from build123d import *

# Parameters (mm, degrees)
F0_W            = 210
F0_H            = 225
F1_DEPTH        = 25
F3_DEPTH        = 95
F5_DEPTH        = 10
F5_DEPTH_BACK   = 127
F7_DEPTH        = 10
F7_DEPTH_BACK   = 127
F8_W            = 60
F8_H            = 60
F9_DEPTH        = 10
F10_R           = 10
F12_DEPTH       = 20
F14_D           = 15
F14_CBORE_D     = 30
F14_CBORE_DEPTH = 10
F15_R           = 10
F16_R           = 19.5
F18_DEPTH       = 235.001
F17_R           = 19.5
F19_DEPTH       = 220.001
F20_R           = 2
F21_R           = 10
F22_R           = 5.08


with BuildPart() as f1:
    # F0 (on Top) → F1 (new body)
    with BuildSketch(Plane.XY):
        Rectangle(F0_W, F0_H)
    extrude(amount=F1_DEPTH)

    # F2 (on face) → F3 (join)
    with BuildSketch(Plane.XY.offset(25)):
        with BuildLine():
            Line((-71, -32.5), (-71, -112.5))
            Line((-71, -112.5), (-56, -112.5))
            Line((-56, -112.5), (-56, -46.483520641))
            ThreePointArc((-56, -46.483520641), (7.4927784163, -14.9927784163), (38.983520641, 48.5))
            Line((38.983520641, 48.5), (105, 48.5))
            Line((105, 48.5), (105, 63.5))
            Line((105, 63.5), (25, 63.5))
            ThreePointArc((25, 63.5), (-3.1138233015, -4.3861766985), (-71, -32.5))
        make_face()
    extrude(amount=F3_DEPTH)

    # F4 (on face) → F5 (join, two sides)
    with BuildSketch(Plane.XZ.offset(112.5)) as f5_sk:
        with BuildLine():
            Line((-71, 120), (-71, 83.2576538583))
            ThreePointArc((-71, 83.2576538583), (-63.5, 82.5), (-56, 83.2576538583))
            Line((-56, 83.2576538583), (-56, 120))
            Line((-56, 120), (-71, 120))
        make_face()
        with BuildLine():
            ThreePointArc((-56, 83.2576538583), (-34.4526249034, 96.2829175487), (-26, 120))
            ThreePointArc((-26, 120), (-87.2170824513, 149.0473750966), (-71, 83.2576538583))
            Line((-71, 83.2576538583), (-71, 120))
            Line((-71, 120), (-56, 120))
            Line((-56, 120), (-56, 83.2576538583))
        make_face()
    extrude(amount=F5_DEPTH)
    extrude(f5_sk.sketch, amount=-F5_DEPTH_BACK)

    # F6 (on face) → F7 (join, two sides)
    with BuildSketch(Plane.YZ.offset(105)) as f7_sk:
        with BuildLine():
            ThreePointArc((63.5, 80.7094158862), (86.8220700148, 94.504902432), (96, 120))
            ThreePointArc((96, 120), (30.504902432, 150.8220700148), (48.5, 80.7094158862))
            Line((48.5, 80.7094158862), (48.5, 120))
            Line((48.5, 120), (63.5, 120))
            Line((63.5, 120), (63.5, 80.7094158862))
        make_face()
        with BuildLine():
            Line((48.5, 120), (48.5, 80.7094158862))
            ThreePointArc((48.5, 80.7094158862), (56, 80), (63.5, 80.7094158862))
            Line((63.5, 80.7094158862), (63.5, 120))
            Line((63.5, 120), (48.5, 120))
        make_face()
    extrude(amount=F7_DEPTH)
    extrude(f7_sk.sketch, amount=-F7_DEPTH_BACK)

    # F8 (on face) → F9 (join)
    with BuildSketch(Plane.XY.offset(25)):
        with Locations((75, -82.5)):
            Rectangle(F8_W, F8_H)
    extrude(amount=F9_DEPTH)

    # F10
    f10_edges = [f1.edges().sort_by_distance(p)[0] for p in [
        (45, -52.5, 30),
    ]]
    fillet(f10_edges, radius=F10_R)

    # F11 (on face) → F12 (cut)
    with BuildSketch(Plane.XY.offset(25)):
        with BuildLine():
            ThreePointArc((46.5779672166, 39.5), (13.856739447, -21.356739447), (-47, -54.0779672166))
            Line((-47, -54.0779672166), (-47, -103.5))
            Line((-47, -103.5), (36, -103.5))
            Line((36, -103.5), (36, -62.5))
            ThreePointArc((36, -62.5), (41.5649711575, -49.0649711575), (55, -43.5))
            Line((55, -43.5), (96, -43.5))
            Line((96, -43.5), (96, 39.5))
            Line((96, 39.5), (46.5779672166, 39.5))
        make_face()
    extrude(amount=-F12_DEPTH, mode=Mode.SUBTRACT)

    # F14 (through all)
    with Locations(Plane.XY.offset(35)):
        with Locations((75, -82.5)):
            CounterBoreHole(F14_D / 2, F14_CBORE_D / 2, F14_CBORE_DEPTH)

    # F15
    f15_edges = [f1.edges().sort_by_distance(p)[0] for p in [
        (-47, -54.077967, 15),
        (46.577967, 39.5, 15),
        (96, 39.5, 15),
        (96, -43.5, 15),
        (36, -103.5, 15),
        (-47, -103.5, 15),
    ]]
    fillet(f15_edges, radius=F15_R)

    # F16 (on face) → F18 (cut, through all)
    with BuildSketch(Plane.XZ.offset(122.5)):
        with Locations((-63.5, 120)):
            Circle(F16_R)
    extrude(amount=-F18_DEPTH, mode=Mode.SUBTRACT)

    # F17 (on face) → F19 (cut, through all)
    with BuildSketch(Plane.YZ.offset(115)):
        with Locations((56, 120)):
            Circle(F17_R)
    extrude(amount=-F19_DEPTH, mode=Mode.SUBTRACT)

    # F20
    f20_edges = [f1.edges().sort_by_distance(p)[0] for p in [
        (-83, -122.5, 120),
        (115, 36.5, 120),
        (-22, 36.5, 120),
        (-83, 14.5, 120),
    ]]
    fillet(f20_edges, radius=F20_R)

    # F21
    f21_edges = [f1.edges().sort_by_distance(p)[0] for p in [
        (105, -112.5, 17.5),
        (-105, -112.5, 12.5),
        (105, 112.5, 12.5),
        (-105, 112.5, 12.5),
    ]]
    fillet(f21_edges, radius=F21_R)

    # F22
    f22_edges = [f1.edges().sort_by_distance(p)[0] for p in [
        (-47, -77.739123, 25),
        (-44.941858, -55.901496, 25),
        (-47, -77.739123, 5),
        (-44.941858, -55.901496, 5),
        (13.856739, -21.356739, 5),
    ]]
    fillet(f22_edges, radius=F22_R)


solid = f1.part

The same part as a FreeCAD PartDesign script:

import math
import FreeCAD as App
import Part
import Sketcher
from FreeCAD import Vector
Q = App.Units.Quantity


def edges_at(feature, points):
    """Names of the edges that pass closest to the given points."""
    edges = feature.Shape.Edges
    near = lambda p: min(range(len(edges)), key=lambda i: edges[i].distToShape(Part.Vertex(*p))[0])
    return sorted({f"Edge{near(p) + 1}" for p in points})

doc = App.newDocument("Part")
params = doc.addObject("Spreadsheet::Sheet", "Params")
for row, (alias, value) in enumerate([
    ("sketch1_width", "210 mm"),
    ("sketch1_height", "225 mm"),
    ("pad1_length", "25 mm"),
    ("sketch2_width", "15 mm"),
    ("sketch2_width2", "80 mm"),
    ("pad2_length", "95 mm"),
    ("sketch3_radius", "37.5 mm"),
    ("pad3_length", "10 mm"),
    ("pad3_length2", "127 mm"),
    ("sketch4_radius", "40 mm"),
    ("pad4_length", "10 mm"),
    ("pad4_length2", "127 mm"),
    ("sketch5_width", "60 mm"),
    ("pad5_length", "10 mm"),
    ("fillet_radius", "10 mm"),
    ("sketch6_radius", "19 mm"),
    ("sketch6_width", "83 mm"),
    ("sketch6_width2", "41 mm"),
    ("pocket1_length", "20 mm"),
    ("sketch7_diameter", "15 mm"),
    ("hole_diameter", "15 mm"),
    ("hole_cbore_diameter", "30 mm"),
    ("hole_cbore_depth", "10 mm"),
    ("fillet2_radius", "10 mm"),
    ("sketch8_diameter", "39 mm"),
    ("sketch9_diameter", "39 mm"),
    ("fillet3_radius", "2 mm"),
    ("fillet4_radius", "10 mm"),
    ("fillet5_radius", "5.08 mm"),
], start=1):
    params.set(f"A{row}", alias)
    params.set(f"B{row}", "=" + value)
    params.setAlias(f"B{row}", alias)

body = doc.addObject("PartDesign::Body", "Body")

# Sketch on XY plane
sketch1 = body.newObject("Sketcher::SketchObject", "Sketch")
sketch1.AttachmentSupport = (doc.getObject("XY_Plane"), [""])
sketch1.MapMode = "FlatFace"
sketch1.addGeometry([
    Part.LineSegment(Vector(-105, 112, 0), Vector(-105, -112, 0)),
    Part.LineSegment(Vector(-105, -112, 0), Vector(105, -112, 0)),
    Part.LineSegment(Vector(105, -112, 0), Vector(105, 112, 0)),
    Part.LineSegment(Vector(105, 112, 0), Vector(-105, 112, 0)),
], False)
sketch1.addConstraint([
    Sketcher.Constraint("Coincident", 0, 2, 1, 1),
    Sketcher.Constraint("Coincident", 1, 2, 2, 1),
    Sketcher.Constraint("Coincident", 2, 2, 3, 1),
    Sketcher.Constraint("Coincident", 3, 2, 0, 1),
    Sketcher.Constraint("Vertical", 0),
    Sketcher.Constraint("Horizontal", 1),
    Sketcher.Constraint("Vertical", 2),
    Sketcher.Constraint("Horizontal", 3),
    Sketcher.Constraint("Symmetric", 0, 2, 2, 2, -1, 1),
    Sketcher.Constraint("DistanceX", 1, 1, 1, 2, Q("210 mm")),
    Sketcher.Constraint("DistanceY", 0, 2, 0, 1, Q("225 mm")),
])
sketch1.setExpression("Constraints[9]", "Params.sketch1_width")
sketch1.setExpression("Constraints[10]", "Params.sketch1_height")
pad1 = body.newObject("PartDesign::Pad", "Pad")
pad1.Profile = sketch1
pad1.setExpression("Length", "Params.pad1_length")

# Sketch on XY plane
sketch2 = body.newObject("Sketcher::SketchObject", "Sketch001")
sketch2.AttachmentSupport = (doc.getObject("XY_Plane"), [""])
sketch2.MapMode = "FlatFace"
sketch2.AttachmentOffset = App.Placement(Vector(0, 0, 25), App.Rotation())
sketch2.addGeometry([
    Part.LineSegment(Vector(-71, -32, 0), Vector(-71, -112, 0)),  # 0
    Part.LineSegment(Vector(-71, -112, 0), Vector(-56, -112, 0)),  # 1
    Part.LineSegment(Vector(-56, -112, 0), Vector(-56, -46, 0)),  # 2
    Part.ArcOfCircle(Part.Circle(Vector(-71, 63, 0), Vector(0, 0, 1), 111), math.radians(-82), math.radians(-8)),  # 3
    Part.LineSegment(Vector(39, 48, 0), Vector(105, 48, 0)),  # 4
    Part.LineSegment(Vector(105, 48, 0), Vector(105, 64, 0)),  # 5
    Part.LineSegment(Vector(105, 64, 0), Vector(25, 64, 0)),  # 6
    Part.ArcOfCircle(Part.Circle(Vector(-71, 63, 0), Vector(0, 0, 1), 96), math.radians(-90), math.radians(0)),  # 7
], False)
sketch2.addConstraint([
    Sketcher.Constraint("Coincident", 0, 2, 1, 1),
    Sketcher.Constraint("Coincident", 1, 2, 2, 1),
    Sketcher.Constraint("Coincident", 2, 2, 3, 1),
    Sketcher.Constraint("Coincident", 3, 2, 4, 1),
    Sketcher.Constraint("Coincident", 4, 2, 5, 1),
    Sketcher.Constraint("Coincident", 5, 2, 6, 1),
    Sketcher.Constraint("Coincident", 6, 2, 7, 2),
    Sketcher.Constraint("Coincident", 7, 1, 0, 1),
    Sketcher.Constraint("Vertical", 0),
    Sketcher.Constraint("Horizontal", 1),
    Sketcher.Constraint("Vertical", 2),
    Sketcher.Constraint("Horizontal", 4),
    Sketcher.Constraint("Vertical", 5),
    Sketcher.Constraint("Horizontal", 6),
    Sketcher.Constraint("Coincident", 7, 3, 3, 3),
    Sketcher.Constraint("Equal", 6, 0),
    Sketcher.Constraint("Equal", 4, 2),
    Sketcher.Constraint("Equal", 1, 5),
    Sketcher.Constraint("DistanceX", 1, 1, 1, 2, Q("15 mm")),
    Sketcher.Constraint("DistanceX", 6, 2, 6, 1, Q("80 mm")),
    Sketcher.Constraint("DistanceX", 0, 2, -1, 1, Q("71 mm")),
    Sketcher.Constraint("DistanceX", -1, 1, 4, 2, Q("105 mm")),
    Sketcher.Constraint("DistanceY", 0, 2, -1, 1, Q("112.5 mm")),
    Sketcher.Constraint("Radius", 3, Q("110.9866 mm")),
    Sketcher.Constraint("Radius", 7, Q("95.9866 mm")),
])
sketch2.setExpression("Constraints[18]", "Params.sketch2_width")
sketch2.setExpression("Constraints[19]", "Params.sketch2_width2")
pad2 = body.newObject("PartDesign::Pad", "Pad001")
pad2.Profile = sketch2
pad2.setExpression("Length", "Params.pad2_length")

# Sketch on XZ plane
sketch3 = body.newObject("Sketcher::SketchObject", "Sketch002")
sketch3.AttachmentSupport = (doc.getObject("XZ_Plane"), [""])
sketch3.MapMode = "FlatFace"
sketch3.AttachmentOffset = App.Placement(Vector(0, 0, 112.5), App.Rotation())
sketch3.addGeometry([
    Part.ArcOfCircle(Part.Circle(Vector(-64, 120, 0), Vector(0, 0, 1), 37), math.radians(-102), math.radians(-78)),
    Part.ArcOfCircle(Part.Circle(Vector(-64, 120, 0), Vector(0, 0, 1), 38), math.radians(-78), math.radians(0)),
    Part.ArcOfCircle(Part.Circle(Vector(-64, 120, 0), Vector(0, 0, 1), 38), math.radians(0), math.radians(258)),
], False)
sketch3.addConstraint([
    Sketcher.Constraint("Tangent", 0, 2, 1, 1),
    Sketcher.Constraint("Tangent", 1, 2, 2, 1),
    Sketcher.Constraint("Tangent", 2, 2, 0, 1),
    Sketcher.Constraint("Horizontal", 2, 3, 1, 2),
    Sketcher.Constraint("Horizontal", 0, 2, 2, 2),
    Sketcher.Constraint("Radius", 0, Q("37.5 mm")),
    Sketcher.Constraint("DistanceY", -1, 1, 0, 3, Q("120 mm")),
    Sketcher.Constraint("DistanceX", 0, 2, -1, 1, Q("56 mm")),
    Sketcher.Constraint("DistanceX", 1, 2, -1, 1, Q("26 mm")),
])
sketch3.setExpression("Constraints[5]", "Params.sketch3_radius")
pad3 = body.newObject("PartDesign::Pad", "Pad002")
pad3.Profile = sketch3
pad3.Type = "TwoLengths"
pad3.setExpression("Length", "Params.pad3_length")
pad3.setExpression("Length2", "Params.pad3_length2")

# Sketch on YZ plane
sketch4 = body.newObject("Sketcher::SketchObject", "Sketch003")
sketch4.AttachmentSupport = (doc.getObject("YZ_Plane"), [""])
sketch4.MapMode = "FlatFace"
sketch4.AttachmentOffset = App.Placement(Vector(0, 0, 105), App.Rotation())
sketch4.addGeometry([
    Part.ArcOfCircle(Part.Circle(Vector(56, 120, 0), Vector(0, 0, 1), 40), math.radians(-79), math.radians(0)),
    Part.ArcOfCircle(Part.Circle(Vector(56, 120, 0), Vector(0, 0, 1), 40), math.radians(0), math.radians(259)),
    Part.ArcOfCircle(Part.Circle(Vector(56, 120, 0), Vector(0, 0, 1), 40), math.radians(-101), math.radians(-79)),
], False)
sketch4.addConstraint([
    Sketcher.Constraint("Tangent", 0, 2, 1, 1),
    Sketcher.Constraint("Tangent", 1, 2, 2, 1),
    Sketcher.Constraint("Tangent", 2, 2, 0, 1),
    Sketcher.Constraint("Horizontal", 2, 3, 0, 2),
    Sketcher.Constraint("Horizontal", 1, 2, 2, 2),
    Sketcher.Constraint("Radius", 0, Q("40 mm")),
    Sketcher.Constraint("DistanceX", -1, 1, 0, 3, Q("56 mm")),
    Sketcher.Constraint("DistanceY", -1, 1, 0, 3, Q("120 mm")),
    Sketcher.Constraint("DistanceX", 1, 2, 2, 2, Q("15 mm")),
])
sketch4.setExpression("Constraints[5]", "Params.sketch4_radius")
pad4 = body.newObject("PartDesign::Pad", "Pad003")
pad4.Profile = sketch4
pad4.Type = "TwoLengths"
pad4.setExpression("Length", "Params.pad4_length")
pad4.setExpression("Length2", "Params.pad4_length2")

# Sketch on XY plane
sketch5 = body.newObject("Sketcher::SketchObject", "Sketch004")
sketch5.AttachmentSupport = (doc.getObject("XY_Plane"), [""])
sketch5.MapMode = "FlatFace"
sketch5.AttachmentOffset = App.Placement(Vector(0, 0, 25), App.Rotation())
sketch5.addGeometry([
    Part.LineSegment(Vector(45, -52, 0), Vector(45, -112, 0)),
    Part.LineSegment(Vector(45, -112, 0), Vector(105, -112, 0)),
    Part.LineSegment(Vector(105, -112, 0), Vector(105, -52, 0)),
    Part.LineSegment(Vector(105, -52, 0), Vector(45, -52, 0)),
], False)
sketch5.addConstraint([
    Sketcher.Constraint("Coincident", 0, 2, 1, 1),
    Sketcher.Constraint("Coincident", 1, 2, 2, 1),
    Sketcher.Constraint("Coincident", 2, 2, 3, 1),
    Sketcher.Constraint("Coincident", 3, 2, 0, 1),
    Sketcher.Constraint("Vertical", 0),
    Sketcher.Constraint("Horizontal", 1),
    Sketcher.Constraint("Vertical", 2),
    Sketcher.Constraint("Horizontal", 3),
    Sketcher.Constraint("Equal", 3, 0),
    Sketcher.Constraint("DistanceX", 1, 1, 1, 2, Q("60 mm")),
    Sketcher.Constraint("DistanceX", -1, 1, 0, 2, Q("45 mm")),
    Sketcher.Constraint("DistanceY", 0, 2, -1, 1, Q("112.5 mm")),
])
sketch5.setExpression("Constraints[9]", "Params.sketch5_width")
pad5 = body.newObject("PartDesign::Pad", "Pad004")
pad5.Profile = sketch5
pad5.setExpression("Length", "Params.pad5_length")
doc.recompute()

fillet = body.newObject("PartDesign::Fillet", "Fillet")
fillet.Base = (pad5, edges_at(pad5, [(45, -52.5, 30)]))
fillet.setExpression("Radius", "Params.fillet_radius")

# Sketch on XY plane
sketch6 = body.newObject("Sketcher::SketchObject", "Sketch005")
sketch6.AttachmentSupport = (doc.getObject("XY_Plane"), [""])
sketch6.MapMode = "FlatFace"
sketch6.AttachmentOffset = App.Placement(Vector(0, 0, 25), App.Rotation())
sketch6.addGeometry([
    Part.ArcOfCircle(Part.Circle(Vector(-71, 63, 0), Vector(0, 0, 1), 120), math.radians(-78), math.radians(-12)),  # 0
    Part.LineSegment(Vector(-47, -54, 0), Vector(-47, -104, 0)),  # 1
    Part.LineSegment(Vector(-47, -104, 0), Vector(36, -104, 0)),  # 2
    Part.LineSegment(Vector(36, -104, 0), Vector(36, -62, 0)),  # 3
    Part.ArcOfCircle(Part.Circle(Vector(55, -62, 0), Vector(0, 0, 1), 19), math.radians(90), math.radians(180)),  # 4
    Part.LineSegment(Vector(55, -44, 0), Vector(96, -44, 0)),  # 5
    Part.LineSegment(Vector(96, -44, 0), Vector(96, 40, 0)),  # 6
    Part.LineSegment(Vector(96, 40, 0), Vector(47, 40, 0)),  # 7
], False)
sketch6.addConstraint([
    Sketcher.Constraint("Coincident", 0, 1, 1, 1),
    Sketcher.Constraint("Coincident", 1, 2, 2, 1),
    Sketcher.Constraint("Coincident", 2, 2, 3, 1),
    Sketcher.Constraint("Tangent", 3, 2, 4, 2),
    Sketcher.Constraint("Tangent", 4, 1, 5, 1),
    Sketcher.Constraint("Coincident", 5, 2, 6, 1),
    Sketcher.Constraint("Coincident", 6, 2, 7, 1),
    Sketcher.Constraint("Coincident", 7, 2, 0, 2),
    Sketcher.Constraint("Vertical", 1),
    Sketcher.Constraint("Horizontal", 2),
    Sketcher.Constraint("Vertical", 3),
    Sketcher.Constraint("Horizontal", 5),
    Sketcher.Constraint("Vertical", 6),
    Sketcher.Constraint("Horizontal", 7),
    Sketcher.Constraint("Equal", 7, 1),
    Sketcher.Constraint("Equal", 5, 3),
    Sketcher.Constraint("Equal", 2, 6),
    Sketcher.Constraint("Radius", 4, Q("19 mm")),
    Sketcher.Constraint("DistanceX", 2, 1, 2, 2, Q("83 mm")),
    Sketcher.Constraint("DistanceX", 5, 1, 5, 2, Q("41 mm")),
    Sketcher.Constraint("DistanceX", -1, 1, 4, 3, Q("55 mm")),
    Sketcher.Constraint("DistanceY", 4, 3, -1, 1, Q("62.5 mm")),
    Sketcher.Constraint("Radius", 0, Q("119.9866 mm")),
    Sketcher.Constraint("DistanceX", 0, 3, -1, 1, Q("70.986599 mm")),
])
sketch6.setExpression("Constraints[17]", "Params.sketch6_radius")
sketch6.setExpression("Constraints[18]", "Params.sketch6_width")
sketch6.setExpression("Constraints[19]", "Params.sketch6_width2")
pocket1 = body.newObject("PartDesign::Pocket", "Pocket")
pocket1.Profile = sketch6
pocket1.setExpression("Length", "Params.pocket1_length")

# Sketch on XY plane
sketch7 = body.newObject("Sketcher::SketchObject", "Sketch006")
sketch7.AttachmentSupport = (doc.getObject("XY_Plane"), [""])
sketch7.MapMode = "FlatFace"
sketch7.AttachmentOffset = App.Placement(Vector(0, 0, 35), App.Rotation())
sketch7.addGeometry(Part.Circle(Vector(75, -82, 0), Vector(0, 0, 1), 8), False)
sketch7.addConstraint([
    Sketcher.Constraint("Diameter", 0, Q("15 mm")),
    Sketcher.Constraint("DistanceX", -1, 1, 0, 3, Q("75 mm")),
    Sketcher.Constraint("DistanceY", 0, 3, -1, 1, Q("82.5 mm")),
])
sketch7.setExpression("Constraints[0]", "Params.sketch7_diameter")
doc.recompute()
hole = body.newObject("PartDesign::Hole", "Hole")
hole.Profile = sketch7
hole.ThreadType = "None"
hole.setExpression("Diameter", "Params.hole_diameter")
hole.DepthType = "ThroughAll"
hole.HoleCutType = "Counterbore"
hole.setExpression("HoleCutDiameter", "Params.hole_cbore_diameter")
hole.setExpression("HoleCutDepth", "Params.hole_cbore_depth")
doc.recompute()

fillet2 = body.newObject("PartDesign::Fillet", "Fillet001")
fillet2.Base = (hole, edges_at(hole, [
    (-47, -54.078, 15),
    (46.578, 39.5, 15),
    (96, 39.5, 15),
    (96, -43.5, 15),
    (36, -103.5, 15),
    (-47, -103.5, 15),
]))
fillet2.setExpression("Radius", "Params.fillet2_radius")

# Sketch on XZ plane
sketch8 = body.newObject("Sketcher::SketchObject", "Sketch007")
sketch8.AttachmentSupport = (doc.getObject("XZ_Plane"), [""])
sketch8.MapMode = "FlatFace"
sketch8.AttachmentOffset = App.Placement(Vector(0, 0, 122.5), App.Rotation())
sketch8.addGeometry(Part.Circle(Vector(-64, 120, 0), Vector(0, 0, 1), 20), False)
sketch8.addConstraint([
    Sketcher.Constraint("Diameter", 0, Q("39 mm")),
    Sketcher.Constraint("DistanceY", -1, 1, 0, 3, Q("120 mm")),
    Sketcher.Constraint("DistanceX", 0, 3, -1, 1, Q("63.5 mm")),
])
sketch8.setExpression("Constraints[0]", "Params.sketch8_diameter")
pocket2 = body.newObject("PartDesign::Pocket", "Pocket001")
pocket2.Profile = sketch8
pocket2.Type = "ThroughAll"

# Sketch on YZ plane
sketch9 = body.newObject("Sketcher::SketchObject", "Sketch008")
sketch9.AttachmentSupport = (doc.getObject("YZ_Plane"), [""])
sketch9.MapMode = "FlatFace"
sketch9.AttachmentOffset = App.Placement(Vector(0, 0, 115), App.Rotation())
sketch9.addGeometry(Part.Circle(Vector(56, 120, 0), Vector(0, 0, 1), 20), False)
sketch9.addConstraint([
    Sketcher.Constraint("Diameter", 0, Q("39 mm")),
    Sketcher.Constraint("DistanceX", -1, 1, 0, 3, Q("56 mm")),
    Sketcher.Constraint("DistanceY", -1, 1, 0, 3, Q("120 mm")),
])
sketch9.setExpression("Constraints[0]", "Params.sketch9_diameter")
pocket3 = body.newObject("PartDesign::Pocket", "Pocket002")
pocket3.Profile = sketch9
pocket3.Type = "ThroughAll"
doc.recompute()

fillet3 = body.newObject("PartDesign::Fillet", "Fillet002")
fillet3.Base = (pocket3, edges_at(pocket3, [
    (-83, -122.5, 120),
    (115, 36.5, 120),
    (-22, 36.5, 120),
    (-83, 14.5, 120),
]))
fillet3.setExpression("Radius", "Params.fillet3_radius")
doc.recompute()

fillet4 = body.newObject("PartDesign::Fillet", "Fillet003")
fillet4.Base = (fillet3, edges_at(fillet3, [
    (105, -112.5, 17.5),
    (-105, -112.5, 12.5),
    (105, 112.5, 12.5),
    (-105, 112.5, 12.5),
]))
fillet4.setExpression("Radius", "Params.fillet4_radius")
doc.recompute()

fillet5 = body.newObject("PartDesign::Fillet", "Fillet004")
fillet5.Base = (fillet4, edges_at(fillet4, [
    (-47, -77.739, 25),
    (-44.942, -55.901, 25),
    (-47, -77.739, 5),
    (-44.942, -55.901, 5),
    (13.857, -21.357, 5),
]))
fillet5.setExpression("Radius", "Params.fillet5_radius")

doc.recompute()
